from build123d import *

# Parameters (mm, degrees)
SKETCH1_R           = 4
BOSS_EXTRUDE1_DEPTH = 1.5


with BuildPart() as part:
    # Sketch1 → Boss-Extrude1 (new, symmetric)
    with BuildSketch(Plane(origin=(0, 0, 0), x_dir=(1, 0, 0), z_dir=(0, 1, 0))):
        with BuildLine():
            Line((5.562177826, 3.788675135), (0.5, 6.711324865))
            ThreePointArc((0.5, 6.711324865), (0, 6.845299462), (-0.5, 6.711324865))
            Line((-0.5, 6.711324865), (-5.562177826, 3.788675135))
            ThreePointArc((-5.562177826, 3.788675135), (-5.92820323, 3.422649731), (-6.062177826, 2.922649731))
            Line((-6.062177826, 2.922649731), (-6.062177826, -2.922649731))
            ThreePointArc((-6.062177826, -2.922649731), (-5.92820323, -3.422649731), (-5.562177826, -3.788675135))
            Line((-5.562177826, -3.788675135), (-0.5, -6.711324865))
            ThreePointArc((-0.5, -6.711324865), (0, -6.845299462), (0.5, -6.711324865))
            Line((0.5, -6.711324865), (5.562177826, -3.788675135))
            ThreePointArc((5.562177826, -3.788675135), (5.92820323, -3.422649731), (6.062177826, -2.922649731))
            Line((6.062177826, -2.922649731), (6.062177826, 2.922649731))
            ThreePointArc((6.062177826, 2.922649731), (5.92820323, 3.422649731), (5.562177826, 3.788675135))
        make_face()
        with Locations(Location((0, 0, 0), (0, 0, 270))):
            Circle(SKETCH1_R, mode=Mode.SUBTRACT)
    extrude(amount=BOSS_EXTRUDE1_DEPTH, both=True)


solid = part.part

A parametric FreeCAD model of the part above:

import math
import FreeCAD as App
import Part
import Sketcher
Q = App.Units.Quantity

doc = App.newDocument("Part")
body = doc.addObject("PartDesign::Body", "Body")

# Sketch on XZ plane
sketch1 = doc.addObject("Sketcher::SketchObject", "Sketch")
body.addObject(sketch1)
sketch1.AttachmentSupport = (doc.XZ_Plane, [""])
sketch1.MapMode = "FlatFace"
sketch1.addGeometry(Part.LineSegment(App.Vector(5.562178, -3.788675, 0), App.Vector(0.5, -6.711325, 0)), False)
sketch1.addGeometry(Part.ArcOfCircle(Part.Circle(App.Vector(0, -5.845299, 0), App.Vector(0, 0, 1), 1), math.radians(-120), math.radians(-60)), False)
sketch1.addGeometry(Part.LineSegment(App.Vector(-0.5, -6.711325, 0), App.Vector(-5.562178, -3.788675, 0)), False)
sketch1.addGeometry(Part.ArcOfCircle(Part.Circle(App.Vector(-5.062178, -2.92265, 0), App.Vector(0, 0, 1), 1), math.radians(180), math.radians(240)), False)
sketch1.addGeometry(Part.LineSegment(App.Vector(-6.062178, -2.92265, 0), App.Vector(-6.062178, 2.92265, 0)), False)
sketch1.addGeometry(Part.ArcOfCircle(Part.Circle(App.Vector(-5.062178, 2.92265, 0), App.Vector(0, 0, 1), 1), math.radians(120), math.radians(180)), False)
sketch1.addGeometry(Part.LineSegment(App.Vector(-5.562178, 3.788675, 0), App.Vector(-0.5, 6.711325, 0)), False)
sketch1.addGeometry(Part.ArcOfCircle(Part.Circle(App.Vector(0, 5.845299, 0), App.Vector(0, 0, 1), 1), math.radians(60), math.radians(120)), False)
sketch1.addGeometry(Part.LineSegment(App.Vector(0.5, 6.711325, 0), App.Vector(5.562178, 3.788675, 0)), False)
sketch1.addGeometry(Part.ArcOfCircle(Part.Circle(App.Vector(5.062178, 2.92265, 0), App.Vector(0, 0, 1), 1), math.radians(0), math.radians(60)), False)
sketch1.addGeometry(Part.LineSegment(App.Vector(6.062178, 2.92265, 0), App.Vector(6.062178, -2.92265, 0)), False)
sketch1.addGeometry(Part.ArcOfCircle(Part.Circle(App.Vector(5.062178, -2.92265, 0), App.Vector(0, 0, 1), 1), math.radians(-60), math.radians(0)), False)
sketch1.addGeometry(Part.Circle(App.Vector(0, 0, 0), App.Vector(0, 0, 1), 4), False)
sketch1.addConstraint(Sketcher.Constraint("Tangent", 0, 2, 1, 2))
sketch1.addConstraint(Sketcher.Constraint("Tangent", 1, 1, 2, 1))
sketch1.addConstraint(Sketcher.Constraint("Tangent", 2, 2, 3, 2))
sketch1.addConstraint(Sketcher.Constraint("Tangent", 3, 1, 4, 1))
sketch1.addConstraint(Sketcher.Constraint("Tangent", 4, 2, 5, 2))
sketch1.addConstraint(Sketcher.Constraint("Tangent", 5, 1, 6, 1))
sketch1.addConstraint(Sketcher.Constraint("Tangent", 6, 2, 7, 2))
sketch1.addConstraint(Sketcher.Constraint("Tangent", 7, 1, 8, 1))
sketch1.addConstraint(Sketcher.Constraint("Tangent", 8, 2, 9, 2))
sketch1.addConstraint(Sketcher.Constraint("Tangent", 9, 1, 10, 1))
sketch1.addConstraint(Sketcher.Constraint("Tangent", 10, 2, 11, 2))
sketch1.addConstraint(Sketcher.Constraint("Tangent", 11, 1, 0, 1))
sketch1.addConstraint(Sketcher.Constraint("Vertical", 4))
sketch1.addConstraint(Sketcher.Constraint("Vertical", 10))
sketch1.addConstraint(Sketcher.Constraint("Coincident", 12, 3, -1, 1))
sketch1.addConstraint(Sketcher.Constraint("Equal", 1, 3))
sketch1.addConstraint(Sketcher.Constraint("Equal", 3, 5))
sketch1.addConstraint(Sketcher.Constraint("Equal", 5, 7))
sketch1.addConstraint(Sketcher.Constraint("Equal", 7, 9))
sketch1.addConstraint(Sketcher.Constraint("Equal", 9, 11))
sketch1.addConstraint(Sketcher.Constraint("Symmetric", 1, 3, 7, 3, -1, 1))
sketch1.addConstraint(Sketcher.Constraint("Symmetric", 3, 3, 9, 3, -1, 1))
sketch1.addConstraint(Sketcher.Constraint("Symmetric", 0, 2, 1, 1, -2))
sketch1.addConstraint(Sketcher.Constraint("Parallel", 0, 6))
sketch1.addConstraint(Sketcher.Constraint("Diameter", 12, 8.0))
sketch1.addConstraint(Sketcher.Constraint("Radius", 1, 1.0))
sketch1.addConstraint(Sketcher.Constraint("Angle", 0, Q("-150 deg")))
sketch1.addConstraint(Sketcher.Constraint("DistanceY", 4, 1, 4, 2, 5.845299))
sketch1.addConstraint(Sketcher.Constraint("Distance", 0, 5.845299))
pad1 = doc.addObject("PartDesign::Pad", "Pad")
body.addObject(pad1)
pad1.Profile = sketch1
pad1.Length = 3
pad1.Midplane = True

doc.recompute()
